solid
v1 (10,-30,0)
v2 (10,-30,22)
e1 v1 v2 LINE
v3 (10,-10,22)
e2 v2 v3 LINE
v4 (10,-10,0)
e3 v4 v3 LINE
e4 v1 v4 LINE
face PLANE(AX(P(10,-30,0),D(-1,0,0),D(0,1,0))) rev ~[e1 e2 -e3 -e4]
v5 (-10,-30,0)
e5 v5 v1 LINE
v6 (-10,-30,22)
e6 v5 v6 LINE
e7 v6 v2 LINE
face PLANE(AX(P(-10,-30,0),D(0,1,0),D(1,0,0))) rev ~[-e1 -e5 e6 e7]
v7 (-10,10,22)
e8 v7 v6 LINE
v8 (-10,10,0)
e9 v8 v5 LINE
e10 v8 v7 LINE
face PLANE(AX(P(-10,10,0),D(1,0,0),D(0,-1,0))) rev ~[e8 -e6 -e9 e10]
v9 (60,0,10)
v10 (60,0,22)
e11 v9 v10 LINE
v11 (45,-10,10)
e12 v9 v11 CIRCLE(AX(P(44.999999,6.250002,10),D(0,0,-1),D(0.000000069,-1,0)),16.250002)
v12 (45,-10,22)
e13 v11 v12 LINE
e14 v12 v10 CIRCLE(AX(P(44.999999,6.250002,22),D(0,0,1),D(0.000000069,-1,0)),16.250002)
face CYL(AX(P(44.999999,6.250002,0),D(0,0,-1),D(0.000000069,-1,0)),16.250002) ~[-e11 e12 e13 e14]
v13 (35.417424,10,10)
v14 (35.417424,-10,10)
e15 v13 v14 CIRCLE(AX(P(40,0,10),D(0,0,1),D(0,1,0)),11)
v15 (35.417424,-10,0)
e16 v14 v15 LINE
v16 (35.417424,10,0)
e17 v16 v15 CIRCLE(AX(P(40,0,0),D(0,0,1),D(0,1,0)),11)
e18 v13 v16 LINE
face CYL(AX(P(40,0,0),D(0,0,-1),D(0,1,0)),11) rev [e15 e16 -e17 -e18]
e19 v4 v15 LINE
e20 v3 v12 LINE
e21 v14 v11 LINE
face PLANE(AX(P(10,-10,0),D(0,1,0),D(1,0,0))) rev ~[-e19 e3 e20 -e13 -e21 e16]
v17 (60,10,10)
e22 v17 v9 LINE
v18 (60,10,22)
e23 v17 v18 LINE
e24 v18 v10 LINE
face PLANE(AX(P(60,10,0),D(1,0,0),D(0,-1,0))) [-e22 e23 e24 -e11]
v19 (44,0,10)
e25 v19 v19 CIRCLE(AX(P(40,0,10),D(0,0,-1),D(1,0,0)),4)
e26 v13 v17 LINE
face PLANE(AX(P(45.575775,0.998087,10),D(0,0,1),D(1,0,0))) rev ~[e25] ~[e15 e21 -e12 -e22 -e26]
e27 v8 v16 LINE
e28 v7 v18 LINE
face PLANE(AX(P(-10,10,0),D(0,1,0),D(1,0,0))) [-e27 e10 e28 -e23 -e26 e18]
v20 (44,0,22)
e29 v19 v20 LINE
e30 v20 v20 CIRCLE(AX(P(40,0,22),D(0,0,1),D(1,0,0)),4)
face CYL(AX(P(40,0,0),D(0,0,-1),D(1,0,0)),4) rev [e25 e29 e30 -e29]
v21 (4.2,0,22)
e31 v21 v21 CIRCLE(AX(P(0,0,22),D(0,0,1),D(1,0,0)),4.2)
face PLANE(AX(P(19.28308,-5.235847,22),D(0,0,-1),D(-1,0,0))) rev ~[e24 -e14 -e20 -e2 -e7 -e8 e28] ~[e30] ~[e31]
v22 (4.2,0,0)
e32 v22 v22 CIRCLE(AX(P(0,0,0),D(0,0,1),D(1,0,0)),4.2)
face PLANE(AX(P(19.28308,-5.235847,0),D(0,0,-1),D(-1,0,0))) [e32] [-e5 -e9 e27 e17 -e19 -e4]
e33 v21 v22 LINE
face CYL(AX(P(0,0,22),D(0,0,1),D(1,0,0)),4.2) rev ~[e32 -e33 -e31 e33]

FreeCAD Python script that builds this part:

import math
import FreeCAD as App
import Part
import Sketcher

V = App.Vector

doc = App.newDocument("Part")
body = doc.addObject("PartDesign::Body", "Body")

# Sketch on XY plane
sketch1 = body.newObject("Sketcher::SketchObject", "Sketch")
sketch1.AttachmentSupport = (doc.getObject("XY_Plane"), [""])
sketch1.MapMode = "FlatFace"
sketch1.addGeometry([
    Part.LineSegment(V(60, 10, 0), V(-10, 10, 0)),  # 0
    Part.LineSegment(V(-10, 10, 0), V(-10, -30, 0)),  # 1
    Part.LineSegment(V(-10, -30, 0), V(10, -30, 0)),  # 2
    Part.LineSegment(V(10, -30, 0), V(10, -10, 0)),  # 3
    Part.LineSegment(V(10, -10, 0), V(45, -10, 0)),  # 4
    Part.ArcOfCircle(Part.Circle(V(45, 6, 0), V(0, 0, 1), 16), math.radians(-90), math.radians(-23)),  # 5
    Part.LineSegment(V(60, 0, 0), V(60, 10, 0)),  # 6
], False)
sketch1.addConstraint([
    Sketcher.Constraint("Coincident", 0, 2, 1, 1),
    Sketcher.Constraint("Coincident", 1, 2, 2, 1),
    Sketcher.Constraint("Coincident", 2, 2, 3, 1),
    Sketcher.Constraint("Coincident", 3, 2, 4, 1),
    Sketcher.Constraint("Tangent", 4, 2, 5, 1),
    Sketcher.Constraint("Coincident", 5, 2, 6, 1),
    Sketcher.Constraint("Coincident", 6, 2, 0, 1),
    Sketcher.Constraint("Horizontal", 0),
    Sketcher.Constraint("Vertical", 1),
    Sketcher.Constraint("Horizontal", 2),
    Sketcher.Constraint("Vertical", 3),
    Sketcher.Constraint("Horizontal", 4),
    Sketcher.Constraint("Vertical", 6),
    Sketcher.Constraint("Symmetric", 0, 2, 3, 2, -1, 1),
    Sketcher.Constraint("PointOnObject", 5, 2, -1),
    Sketcher.Constraint("Equal", 2, 3),
    Sketcher.Constraint("DistanceX", 0, 2, 0, 1, 70.0),
    Sketcher.Constraint("DistanceX", 2, 1, 2, 2, 20.0),
    Sketcher.Constraint("DistanceX", 4, 1, 4, 2, 35.0),
    Sketcher.Constraint("DistanceY", 1, 2, 1, 1, 40.0),
])
pad1 = body.newObject("PartDesign::Pad", "Pad")
pad1.Profile = sketch1
pad1.Length = 22

# Sketch on XY plane
sketch2 = body.newObject("Sketcher::SketchObject", "Sketch001")
sketch2.AttachmentSupport = (doc.getObject("XY_Plane"), [""])
sketch2.MapMode = "FlatFace"
sketch2.addGeometry(Part.Circle(V(40, 0, 0), V(0, 0, 1), 4), False)
sketch2.addConstraint([
    Sketcher.Constraint("PointOnObject", 0, 3, -1),
    Sketcher.Constraint("Diameter", 0, 8.0),
    Sketcher.Constraint("DistanceX", -1, 1, 0, 3, 40.0),
])
pocket1 = body.newObject("PartDesign::Pocket", "Pocket")
pocket1.Profile = sketch2
pocket1.Length = 22
pocket1.Reversed = True

# Sketch on XY plane
sketch3 = body.newObject("Sketcher::SketchObject", "Sketch002")
sketch3.AttachmentSupport = (doc.getObject("XY_Plane"), [""])
sketch3.MapMode = "FlatFace"
sketch3.addGeometry([
    Part.ArcOfCircle(Part.Circle(V(40, 0, 0), V(0, 0, 1), 11), math.radians(90), math.radians(270)),  # 0
    Part.LineSegment(V(40, -11, 0), V(45, -11, 0)),  # 1
    Part.ArcOfCircle(Part.Circle(V(45, 5, 0), V(0, 0, 1), 16), math.radians(-90), math.radians(-18)),  # 2
    Part.LineSegment(V(60, 0, 0), V(60, 11, 0)),  # 3
    Part.LineSegment(V(60, 11, 0), V(40, 11, 0)),  # 4
], False)
sketch3.addConstraint([
    Sketcher.Constraint("Tangent", 0, 2, 1, 1),
    Sketcher.Constraint("Tangent", 1, 2, 2, 1),
    Sketcher.Constraint("Coincident", 2, 2, 3, 1),
    Sketcher.Constraint("Coincident", 3, 2, 4, 1),
    Sketcher.Constraint("Tangent", 4, 2, 0, 1),
    Sketcher.Constraint("Horizontal", 1),
    Sketcher.Constraint("Vertical", 3),
    Sketcher.Constraint("Horizontal", 4),
    Sketcher.Constraint("PointOnObject", 0, 3, -1),
    Sketcher.Constraint("PointOnObject", 2, 2, -1),
    Sketcher.Constraint("Radius", 0, 11.0),
    Sketcher.Constraint("DistanceX", 1, 1, 1, 2, 5.0),
    Sketcher.Constraint("DistanceX", 4, 2, 4, 1, 20.1),
    Sketcher.Constraint("DistanceX", -1, 1, 0, 3, 40.0),
])
pocket2 = body.newObject("PartDesign::Pocket", "Pocket001")
pocket2.Profile = sketch3
pocket2.Length = 10
pocket2.Reversed = True

# Sketch on XY plane
sketch4 = body.newObject("Sketcher::SketchObject", "Sketch003")
sketch4.AttachmentSupport = (doc.getObject("XY_Plane"), [""])
sketch4.MapMode = "FlatFace"
sketch4.AttachmentOffset = App.Placement(V(0, 0, 22), App.Rotation())
sketch4.addGeometry(Part.Circle(V(0, 0, 0), V(0, 0, 1), 4.2), False)
sketch4.addConstraint([
    Sketcher.Constraint("Coincident", 0, 3, -1, 1),
    Sketcher.Constraint("Diameter", 0, 8.4),
])
pocket3 = body.newObject("PartDesign::Pocket", "Pocket002")
pocket3.Profile = sketch4
pocket3.Length = 22

doc.recompute()
